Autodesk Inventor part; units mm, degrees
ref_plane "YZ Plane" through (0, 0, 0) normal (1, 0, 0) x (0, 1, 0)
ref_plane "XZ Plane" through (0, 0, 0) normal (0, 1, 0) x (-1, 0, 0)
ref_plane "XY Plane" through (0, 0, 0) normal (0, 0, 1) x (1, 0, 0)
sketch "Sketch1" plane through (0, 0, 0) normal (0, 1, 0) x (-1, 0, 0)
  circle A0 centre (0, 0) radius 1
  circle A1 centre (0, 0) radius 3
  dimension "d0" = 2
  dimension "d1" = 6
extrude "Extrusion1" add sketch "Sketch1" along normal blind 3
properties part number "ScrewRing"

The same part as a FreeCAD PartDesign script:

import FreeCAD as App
import Part
import Sketcher

V = App.Vector
Q = App.Units.Quantity

doc = App.newDocument("Part")
params = doc.addObject("Spreadsheet::Sheet", "Params")
for row, (alias, value) in enumerate([
    ("sketch1_diameter", "6 mm"),
    ("sketch1_diameter2", "2 mm"),
    ("pad1_length", "3 mm"),
], start=1):
    params.set(f"A{row}", alias)
    params.set(f"B{row}", "=" + value)
    params.setAlias(f"B{row}", alias)

body = doc.addObject("PartDesign::Body", "Body")

# Sketch on XZ plane
sketch1 = body.newObject("Sketcher::SketchObject", "Sketch")
sketch1.AttachmentSupport = (doc.getObject("XZ_Plane"), [""])
sketch1.MapMode = "FlatFace"
sketch1.addGeometry([
    Part.Circle(V(0, 0, 0), V(0, 0, 1), 3),
    Part.Circle(V(0, 0, 0), V(0, 0, 1), 1),
], False)
sketch1.addConstraint([
    Sketcher.Constraint("Coincident", 0, 3, -1, 1),
    Sketcher.Constraint("Coincident", 1, 3, -1, 1),
    Sketcher.Constraint("Diameter", 0, Q("6 mm")),
    Sketcher.Constraint("Diameter", 1, Q("2 mm")),
])
sketch1.setExpression("Constraints[2]", "Params.sketch1_diameter")
sketch1.setExpression("Constraints[3]", "Params.sketch1_diameter2")
pad1 = body.newObject("PartDesign::Pad", "Pad")
pad1.Profile = sketch1
pad1.setExpression("Length", "Params.pad1_length")
pad1.Reversed = True

doc.recompute()
